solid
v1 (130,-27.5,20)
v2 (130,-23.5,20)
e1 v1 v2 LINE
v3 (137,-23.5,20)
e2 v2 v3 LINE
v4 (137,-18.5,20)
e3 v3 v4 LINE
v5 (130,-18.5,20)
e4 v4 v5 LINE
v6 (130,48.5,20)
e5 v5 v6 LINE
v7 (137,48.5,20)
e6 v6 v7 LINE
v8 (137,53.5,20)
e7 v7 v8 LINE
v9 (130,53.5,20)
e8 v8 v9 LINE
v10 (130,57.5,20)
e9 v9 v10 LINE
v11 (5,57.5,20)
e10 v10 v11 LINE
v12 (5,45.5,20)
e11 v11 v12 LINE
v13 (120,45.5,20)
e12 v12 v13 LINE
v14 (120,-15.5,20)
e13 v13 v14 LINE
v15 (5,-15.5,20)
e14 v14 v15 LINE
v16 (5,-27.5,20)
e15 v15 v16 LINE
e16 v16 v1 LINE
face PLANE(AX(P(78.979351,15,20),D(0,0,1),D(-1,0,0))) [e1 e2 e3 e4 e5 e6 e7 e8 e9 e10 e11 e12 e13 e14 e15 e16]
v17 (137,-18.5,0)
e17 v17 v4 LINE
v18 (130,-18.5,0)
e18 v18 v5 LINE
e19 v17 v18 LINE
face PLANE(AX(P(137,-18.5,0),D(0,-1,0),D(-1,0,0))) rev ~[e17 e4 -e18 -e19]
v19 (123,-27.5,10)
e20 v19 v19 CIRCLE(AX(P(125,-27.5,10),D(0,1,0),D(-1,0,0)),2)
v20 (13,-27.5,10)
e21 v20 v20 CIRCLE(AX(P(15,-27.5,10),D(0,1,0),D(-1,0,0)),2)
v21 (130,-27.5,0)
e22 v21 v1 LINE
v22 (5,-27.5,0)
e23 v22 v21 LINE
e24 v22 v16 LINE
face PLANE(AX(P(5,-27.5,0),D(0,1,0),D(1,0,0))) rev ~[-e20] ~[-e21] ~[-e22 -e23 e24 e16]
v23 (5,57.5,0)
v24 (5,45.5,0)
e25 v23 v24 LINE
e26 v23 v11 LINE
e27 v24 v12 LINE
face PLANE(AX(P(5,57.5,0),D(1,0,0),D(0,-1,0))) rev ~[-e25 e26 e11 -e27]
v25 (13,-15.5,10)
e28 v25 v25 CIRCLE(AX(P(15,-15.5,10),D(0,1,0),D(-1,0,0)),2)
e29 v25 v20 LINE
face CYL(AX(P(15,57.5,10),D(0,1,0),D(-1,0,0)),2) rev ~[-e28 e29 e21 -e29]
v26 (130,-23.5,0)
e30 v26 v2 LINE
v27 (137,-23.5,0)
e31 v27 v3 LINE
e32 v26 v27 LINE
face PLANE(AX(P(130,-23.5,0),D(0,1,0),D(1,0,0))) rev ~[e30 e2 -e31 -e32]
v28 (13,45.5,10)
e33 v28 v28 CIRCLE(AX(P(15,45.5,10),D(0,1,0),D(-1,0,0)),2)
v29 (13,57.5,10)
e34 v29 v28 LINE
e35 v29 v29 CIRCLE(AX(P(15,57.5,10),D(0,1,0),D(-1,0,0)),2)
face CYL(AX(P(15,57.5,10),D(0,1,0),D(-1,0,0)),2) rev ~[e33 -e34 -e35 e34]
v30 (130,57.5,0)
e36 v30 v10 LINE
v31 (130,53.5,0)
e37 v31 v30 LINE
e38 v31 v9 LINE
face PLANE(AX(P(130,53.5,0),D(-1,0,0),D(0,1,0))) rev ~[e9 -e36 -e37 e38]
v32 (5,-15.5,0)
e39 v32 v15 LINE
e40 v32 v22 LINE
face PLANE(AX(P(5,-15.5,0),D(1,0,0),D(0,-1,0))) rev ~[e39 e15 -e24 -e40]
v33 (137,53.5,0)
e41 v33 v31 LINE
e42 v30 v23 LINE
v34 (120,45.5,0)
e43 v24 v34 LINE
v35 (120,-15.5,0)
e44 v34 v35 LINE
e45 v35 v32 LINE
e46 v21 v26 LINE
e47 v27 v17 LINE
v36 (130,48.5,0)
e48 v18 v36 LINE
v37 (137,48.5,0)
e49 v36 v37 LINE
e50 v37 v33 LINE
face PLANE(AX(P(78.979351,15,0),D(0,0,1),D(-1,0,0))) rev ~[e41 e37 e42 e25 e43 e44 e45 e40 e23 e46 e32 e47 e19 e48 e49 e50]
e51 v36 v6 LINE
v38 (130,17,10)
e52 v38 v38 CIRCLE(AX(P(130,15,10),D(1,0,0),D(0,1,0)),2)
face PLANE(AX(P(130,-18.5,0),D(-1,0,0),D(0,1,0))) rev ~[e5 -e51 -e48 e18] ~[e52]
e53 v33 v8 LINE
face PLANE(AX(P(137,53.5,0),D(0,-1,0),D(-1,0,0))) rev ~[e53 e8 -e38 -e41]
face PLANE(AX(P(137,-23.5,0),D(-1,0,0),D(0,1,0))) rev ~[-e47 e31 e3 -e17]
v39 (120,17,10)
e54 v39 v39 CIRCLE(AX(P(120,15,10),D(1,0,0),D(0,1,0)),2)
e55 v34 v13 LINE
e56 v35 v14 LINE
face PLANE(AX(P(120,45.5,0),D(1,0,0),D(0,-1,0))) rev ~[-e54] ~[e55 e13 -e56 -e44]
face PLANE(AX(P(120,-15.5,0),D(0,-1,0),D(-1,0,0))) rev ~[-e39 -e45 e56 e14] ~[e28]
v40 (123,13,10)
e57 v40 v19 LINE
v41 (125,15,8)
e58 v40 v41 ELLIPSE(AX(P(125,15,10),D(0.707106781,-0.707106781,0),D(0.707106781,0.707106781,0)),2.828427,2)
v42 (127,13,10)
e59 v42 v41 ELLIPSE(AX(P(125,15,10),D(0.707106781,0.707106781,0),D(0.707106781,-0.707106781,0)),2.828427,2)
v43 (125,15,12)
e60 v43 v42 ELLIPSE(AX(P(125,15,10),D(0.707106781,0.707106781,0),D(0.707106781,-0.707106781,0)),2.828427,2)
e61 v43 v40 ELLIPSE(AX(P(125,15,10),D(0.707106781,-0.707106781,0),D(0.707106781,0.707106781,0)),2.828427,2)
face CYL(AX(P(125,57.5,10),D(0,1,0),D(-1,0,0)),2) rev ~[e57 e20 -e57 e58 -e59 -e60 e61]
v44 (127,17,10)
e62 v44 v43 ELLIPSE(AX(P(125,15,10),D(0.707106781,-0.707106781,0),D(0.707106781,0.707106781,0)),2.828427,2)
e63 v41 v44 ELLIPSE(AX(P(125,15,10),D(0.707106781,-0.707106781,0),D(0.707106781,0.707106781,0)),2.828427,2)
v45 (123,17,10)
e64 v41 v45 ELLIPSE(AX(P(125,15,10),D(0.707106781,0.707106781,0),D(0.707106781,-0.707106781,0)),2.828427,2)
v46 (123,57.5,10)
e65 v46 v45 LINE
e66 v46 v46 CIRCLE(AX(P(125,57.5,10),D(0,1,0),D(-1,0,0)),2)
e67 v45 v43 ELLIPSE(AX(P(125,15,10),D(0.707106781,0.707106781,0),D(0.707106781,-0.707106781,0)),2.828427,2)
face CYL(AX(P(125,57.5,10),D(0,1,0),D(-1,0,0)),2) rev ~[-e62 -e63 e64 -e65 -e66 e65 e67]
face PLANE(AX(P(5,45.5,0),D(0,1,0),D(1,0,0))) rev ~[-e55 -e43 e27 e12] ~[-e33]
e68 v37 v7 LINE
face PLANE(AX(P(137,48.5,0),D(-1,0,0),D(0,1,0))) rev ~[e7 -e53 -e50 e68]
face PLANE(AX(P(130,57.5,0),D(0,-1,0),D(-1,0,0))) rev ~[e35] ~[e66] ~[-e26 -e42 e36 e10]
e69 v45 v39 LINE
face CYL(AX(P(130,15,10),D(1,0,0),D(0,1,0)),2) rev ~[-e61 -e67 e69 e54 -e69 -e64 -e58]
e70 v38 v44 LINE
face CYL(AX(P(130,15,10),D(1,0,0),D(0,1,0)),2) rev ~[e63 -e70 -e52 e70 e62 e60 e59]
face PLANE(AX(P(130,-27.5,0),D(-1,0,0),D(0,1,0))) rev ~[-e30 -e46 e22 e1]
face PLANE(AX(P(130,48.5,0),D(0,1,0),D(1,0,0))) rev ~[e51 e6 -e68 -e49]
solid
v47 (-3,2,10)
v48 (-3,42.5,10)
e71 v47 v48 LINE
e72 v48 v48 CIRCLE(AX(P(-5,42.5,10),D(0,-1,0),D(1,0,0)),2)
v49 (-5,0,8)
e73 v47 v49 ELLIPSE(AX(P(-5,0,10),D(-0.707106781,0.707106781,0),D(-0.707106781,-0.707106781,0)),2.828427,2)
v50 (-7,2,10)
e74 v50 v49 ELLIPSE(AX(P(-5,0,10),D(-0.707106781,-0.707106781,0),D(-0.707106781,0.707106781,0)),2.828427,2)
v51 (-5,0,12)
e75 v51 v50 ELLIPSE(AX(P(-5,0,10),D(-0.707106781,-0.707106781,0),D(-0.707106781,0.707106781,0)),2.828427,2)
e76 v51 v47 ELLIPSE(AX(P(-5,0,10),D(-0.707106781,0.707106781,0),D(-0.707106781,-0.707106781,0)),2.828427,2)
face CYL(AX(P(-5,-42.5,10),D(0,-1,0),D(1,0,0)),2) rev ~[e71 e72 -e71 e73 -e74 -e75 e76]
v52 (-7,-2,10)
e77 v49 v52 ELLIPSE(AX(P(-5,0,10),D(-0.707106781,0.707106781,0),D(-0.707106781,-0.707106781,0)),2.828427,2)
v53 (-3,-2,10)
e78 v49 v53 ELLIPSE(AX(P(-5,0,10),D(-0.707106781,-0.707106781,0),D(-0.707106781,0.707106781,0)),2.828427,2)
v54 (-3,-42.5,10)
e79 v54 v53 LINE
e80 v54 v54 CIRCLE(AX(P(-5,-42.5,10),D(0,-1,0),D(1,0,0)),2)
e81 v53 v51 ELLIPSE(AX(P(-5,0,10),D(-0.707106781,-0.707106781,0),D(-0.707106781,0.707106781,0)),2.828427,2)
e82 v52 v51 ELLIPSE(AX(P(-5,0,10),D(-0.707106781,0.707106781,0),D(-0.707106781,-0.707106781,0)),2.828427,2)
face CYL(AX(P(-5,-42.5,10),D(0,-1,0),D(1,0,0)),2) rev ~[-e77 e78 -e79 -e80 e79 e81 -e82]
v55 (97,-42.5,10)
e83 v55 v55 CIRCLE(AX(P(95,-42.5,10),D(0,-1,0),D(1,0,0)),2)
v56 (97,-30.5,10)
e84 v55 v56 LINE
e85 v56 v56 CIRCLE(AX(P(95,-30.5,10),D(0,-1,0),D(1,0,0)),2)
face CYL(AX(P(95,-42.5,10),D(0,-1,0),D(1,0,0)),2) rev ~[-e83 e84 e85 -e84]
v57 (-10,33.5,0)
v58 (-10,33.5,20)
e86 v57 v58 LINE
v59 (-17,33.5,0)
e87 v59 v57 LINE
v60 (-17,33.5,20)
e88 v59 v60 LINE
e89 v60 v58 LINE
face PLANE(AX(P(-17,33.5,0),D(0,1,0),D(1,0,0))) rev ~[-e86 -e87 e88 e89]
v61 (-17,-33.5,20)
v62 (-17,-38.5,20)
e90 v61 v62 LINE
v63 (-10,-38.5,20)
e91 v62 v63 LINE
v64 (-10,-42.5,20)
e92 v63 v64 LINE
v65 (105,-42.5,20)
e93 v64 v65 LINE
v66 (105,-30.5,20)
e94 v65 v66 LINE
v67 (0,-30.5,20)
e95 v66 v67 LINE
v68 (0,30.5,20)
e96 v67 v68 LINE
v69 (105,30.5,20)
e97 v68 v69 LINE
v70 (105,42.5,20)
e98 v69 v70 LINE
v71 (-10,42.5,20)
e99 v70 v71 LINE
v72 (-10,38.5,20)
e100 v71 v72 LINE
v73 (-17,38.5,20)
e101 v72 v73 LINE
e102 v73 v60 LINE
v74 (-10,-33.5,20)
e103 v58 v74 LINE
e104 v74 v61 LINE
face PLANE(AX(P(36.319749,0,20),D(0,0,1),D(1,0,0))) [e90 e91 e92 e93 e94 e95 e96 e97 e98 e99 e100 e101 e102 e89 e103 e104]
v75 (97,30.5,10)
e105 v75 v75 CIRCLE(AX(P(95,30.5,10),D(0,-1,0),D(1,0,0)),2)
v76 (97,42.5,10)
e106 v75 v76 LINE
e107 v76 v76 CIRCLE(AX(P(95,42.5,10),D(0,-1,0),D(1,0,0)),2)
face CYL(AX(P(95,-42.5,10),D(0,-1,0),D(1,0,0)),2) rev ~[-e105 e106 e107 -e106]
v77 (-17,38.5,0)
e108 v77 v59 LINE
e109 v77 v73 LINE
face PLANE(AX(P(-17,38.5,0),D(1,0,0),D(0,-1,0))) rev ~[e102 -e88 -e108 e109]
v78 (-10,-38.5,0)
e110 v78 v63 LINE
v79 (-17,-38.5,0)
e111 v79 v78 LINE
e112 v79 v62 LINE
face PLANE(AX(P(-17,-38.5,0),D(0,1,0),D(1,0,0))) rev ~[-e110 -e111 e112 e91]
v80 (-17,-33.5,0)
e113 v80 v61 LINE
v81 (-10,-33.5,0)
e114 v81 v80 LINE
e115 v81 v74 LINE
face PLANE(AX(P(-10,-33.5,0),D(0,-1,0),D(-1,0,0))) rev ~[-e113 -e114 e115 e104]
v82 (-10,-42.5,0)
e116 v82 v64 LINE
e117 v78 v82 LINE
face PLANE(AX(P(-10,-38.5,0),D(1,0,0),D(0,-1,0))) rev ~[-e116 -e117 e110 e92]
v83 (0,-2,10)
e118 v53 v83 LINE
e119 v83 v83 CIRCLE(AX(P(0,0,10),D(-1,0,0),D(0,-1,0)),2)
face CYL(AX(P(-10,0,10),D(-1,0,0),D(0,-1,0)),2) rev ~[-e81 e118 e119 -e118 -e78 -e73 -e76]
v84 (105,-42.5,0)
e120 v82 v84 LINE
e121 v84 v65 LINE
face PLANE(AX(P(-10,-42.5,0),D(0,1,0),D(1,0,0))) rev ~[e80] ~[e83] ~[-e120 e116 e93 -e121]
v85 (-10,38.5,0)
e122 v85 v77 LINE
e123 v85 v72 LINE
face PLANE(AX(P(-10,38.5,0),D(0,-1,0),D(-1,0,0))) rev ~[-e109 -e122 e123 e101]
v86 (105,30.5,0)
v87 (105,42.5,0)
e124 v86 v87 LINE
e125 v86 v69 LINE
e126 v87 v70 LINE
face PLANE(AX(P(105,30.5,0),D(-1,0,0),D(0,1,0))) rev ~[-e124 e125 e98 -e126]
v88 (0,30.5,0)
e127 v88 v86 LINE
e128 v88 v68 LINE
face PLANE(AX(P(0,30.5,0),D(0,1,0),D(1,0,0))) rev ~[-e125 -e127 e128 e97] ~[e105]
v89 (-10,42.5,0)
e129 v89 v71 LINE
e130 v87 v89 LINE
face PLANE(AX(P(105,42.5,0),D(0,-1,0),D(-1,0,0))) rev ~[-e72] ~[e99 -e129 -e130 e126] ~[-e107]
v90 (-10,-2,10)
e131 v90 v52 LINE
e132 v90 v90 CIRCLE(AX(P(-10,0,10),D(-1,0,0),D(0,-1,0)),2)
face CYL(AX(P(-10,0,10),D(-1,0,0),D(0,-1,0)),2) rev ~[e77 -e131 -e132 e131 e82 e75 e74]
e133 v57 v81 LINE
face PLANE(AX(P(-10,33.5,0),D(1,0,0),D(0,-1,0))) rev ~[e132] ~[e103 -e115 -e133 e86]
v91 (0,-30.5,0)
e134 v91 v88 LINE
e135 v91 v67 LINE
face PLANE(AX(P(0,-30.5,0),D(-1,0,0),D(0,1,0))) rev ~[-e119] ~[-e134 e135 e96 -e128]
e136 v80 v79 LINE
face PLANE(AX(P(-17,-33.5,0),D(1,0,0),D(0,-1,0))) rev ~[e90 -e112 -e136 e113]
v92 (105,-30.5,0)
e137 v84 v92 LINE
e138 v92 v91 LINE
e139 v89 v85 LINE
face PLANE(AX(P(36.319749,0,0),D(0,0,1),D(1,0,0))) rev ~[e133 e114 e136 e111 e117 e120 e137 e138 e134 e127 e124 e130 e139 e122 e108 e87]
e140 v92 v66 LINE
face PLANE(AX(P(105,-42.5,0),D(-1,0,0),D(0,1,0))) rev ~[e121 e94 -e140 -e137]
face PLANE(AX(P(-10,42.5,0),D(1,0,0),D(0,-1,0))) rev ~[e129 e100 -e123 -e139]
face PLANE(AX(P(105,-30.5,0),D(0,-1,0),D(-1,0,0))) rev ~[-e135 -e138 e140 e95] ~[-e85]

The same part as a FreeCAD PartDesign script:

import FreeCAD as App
import Part
import Sketcher
Q = App.Units.Quantity

doc = App.newDocument("Part")
params = doc.addObject("Spreadsheet::Sheet", "Params")
for row, (alias, value) in enumerate([
    ("sketch1_width", "115 mm"),
    ("sketch1_width2", "105 mm"),
    ("sketch1_width3", "7 mm"),
    ("sketch1_height", "12 mm"),
    ("sketch1_height2", "61 mm"),
    ("pad1_length", "20 mm"),
    ("sketch2_diameter", "4 mm"),
    ("sketch3_diameter", "4 mm"),
    ("sketch4_width", "125 mm"),
    ("sketch4_width2", "115 mm"),
    ("sketch4_width3", "7 mm"),
    ("sketch4_height", "12 mm"),
    ("sketch4_height2", "61 mm"),
    ("pad2_length", "20 mm"),
    ("sketch5_diameter", "4 mm"),
    ("sketch6_diameter", "4 mm"),
], start=1):
    params.set(f"A{row}", alias)
    params.set(f"B{row}", "=" + value)
    params.setAlias(f"B{row}", alias)

body = doc.addObject("PartDesign::Body", "Body")

# Sketch on XY plane
sketch1 = body.newObject("Sketcher::SketchObject", "Sketch")
sketch1.AttachmentSupport = (doc.getObject("XY_Plane"), [""])
sketch1.MapMode = "FlatFace"
sketch1.addGeometry([
    Part.LineSegment(App.Vector(-10, -42.5, 0), App.Vector(105, -42.5, 0)),  # 0
    Part.LineSegment(App.Vector(105, -42.5, 0), App.Vector(105, -30.5, 0)),  # 1
    Part.LineSegment(App.Vector(105, -30.5, 0), App.Vector(0, -30.5, 0)),  # 2
    Part.LineSegment(App.Vector(0, -30.5, 0), App.Vector(0, 30.5, 0)),  # 3
    Part.LineSegment(App.Vector(0, 30.5, 0), App.Vector(105, 30.5, 0)),  # 4
    Part.LineSegment(App.Vector(105, 30.5, 0), App.Vector(105, 42.5, 0)),  # 5
    Part.LineSegment(App.Vector(105, 42.5, 0), App.Vector(-10, 42.5, 0)),  # 6
    Part.LineSegment(App.Vector(-10, 42.5, 0), App.Vector(-10, 38.5, 0)),  # 7
    Part.LineSegment(App.Vector(-10, 38.5, 0), App.Vector(-17, 38.5, 0)),  # 8
    Part.LineSegment(App.Vector(-17, 38.5, 0), App.Vector(-17, 33.5, 0)),  # 9
    Part.LineSegment(App.Vector(-17, 33.5, 0), App.Vector(-10, 33.5, 0)),  # 10
    Part.LineSegment(App.Vector(-10, 33.5, 0), App.Vector(-10, -33.5, 0)),  # 11
    Part.LineSegment(App.Vector(-10, -33.5, 0), App.Vector(-17, -33.5, 0)),  # 12
    Part.LineSegment(App.Vector(-17, -33.5, 0), App.Vector(-17, -38.5, 0)),  # 13
    Part.LineSegment(App.Vector(-17, -38.5, 0), App.Vector(-10, -38.5, 0)),  # 14
    Part.LineSegment(App.Vector(-10, -38.5, 0), App.Vector(-10, -42.5, 0)),  # 15
], False)
sketch1.addConstraint([
    Sketcher.Constraint("Coincident", 0, 2, 1, 1),
    Sketcher.Constraint("Coincident", 1, 2, 2, 1),
    Sketcher.Constraint("Coincident", 2, 2, 3, 1),
    Sketcher.Constraint("Coincident", 3, 2, 4, 1),
    Sketcher.Constraint("Coincident", 4, 2, 5, 1),
    Sketcher.Constraint("Coincident", 5, 2, 6, 1),
    Sketcher.Constraint("Coincident", 6, 2, 7, 1),
    Sketcher.Constraint("Coincident", 7, 2, 8, 1),
    Sketcher.Constraint("Coincident", 8, 2, 9, 1),
    Sketcher.Constraint("Coincident", 9, 2, 10, 1),
    Sketcher.Constraint("Coincident", 10, 2, 11, 1),
    Sketcher.Constraint("Coincident", 11, 2, 12, 1),
    Sketcher.Constraint("Coincident", 12, 2, 13, 1),
    Sketcher.Constraint("Coincident", 13, 2, 14, 1),
    Sketcher.Constraint("Coincident", 14, 2, 15, 1),
    Sketcher.Constraint("Coincident", 15, 2, 0, 1),
    Sketcher.Constraint("Horizontal", 0),
    Sketcher.Constraint("Vertical", 1),
    Sketcher.Constraint("Horizontal", 2),
    Sketcher.Constraint("Vertical", 3),
    Sketcher.Constraint("Horizontal", 4),
    Sketcher.Constraint("Vertical", 5),
    Sketcher.Constraint("Horizontal", 6),
    Sketcher.Constraint("Vertical", 7),
    Sketcher.Constraint("Horizontal", 8),
    Sketcher.Constraint("Vertical", 9),
    Sketcher.Constraint("Horizontal", 10),
    Sketcher.Constraint("Vertical", 11),
    Sketcher.Constraint("Horizontal", 12),
    Sketcher.Constraint("Vertical", 13),
    Sketcher.Constraint("Horizontal", 14),
    Sketcher.Constraint("Vertical", 15),
    Sketcher.Constraint("Symmetric", 2, 2, 3, 2, -1, 1),
    Sketcher.Constraint("Symmetric", 0, 2, 5, 2, -1),
    Sketcher.Constraint("Symmetric", 9, 2, 12, 2, -1),
    Sketcher.Constraint("Symmetric", 7, 2, 14, 2, -1),
    Sketcher.Constraint("Vertical", 7, 2, 10, 2),
    Sketcher.Constraint("DistanceX", 0, 1, 0, 2, Q("115 mm")),
    Sketcher.Constraint("DistanceX", 2, 2, 2, 1, Q("105 mm")),
    Sketcher.Constraint("DistanceX", 8, 2, 8, 1, Q("7 mm")),
    Sketcher.Constraint("DistanceY", 1, 1, 1, 2, Q("12 mm")),
    Sketcher.Constraint("DistanceY", 3, 1, 3, 2, Q("61 mm")),
    Sketcher.Constraint("DistanceY", 7, 2, 7, 1, Q("4 mm")),
    Sketcher.Constraint("DistanceY", 9, 2, 9, 1, Q("5 mm")),
])
sketch1.setExpression("Constraints[37]", "Params.sketch1_width")
sketch1.setExpression("Constraints[38]", "Params.sketch1_width2")
sketch1.setExpression("Constraints[39]", "Params.sketch1_width3")
sketch1.setExpression("Constraints[40]", "Params.sketch1_height")
sketch1.setExpression("Constraints[41]", "Params.sketch1_height2")
pad1 = body.newObject("PartDesign::Pad", "Pad")
pad1.Profile = sketch1
pad1.setExpression("Length", "Params.pad1_length")

# Sketch on YZ plane
sketch2 = body.newObject("Sketcher::SketchObject", "Sketch001")
sketch2.AttachmentSupport = (doc.getObject("YZ_Plane"), [""])
sketch2.MapMode = "FlatFace"
sketch2.AttachmentOffset = App.Placement(App.Vector(0, 0, -10), App.Rotation())
sketch2.addGeometry(Part.Circle(App.Vector(0, 10, 0), App.Vector(0, 0, 1), 2), False)
sketch2.addConstraint([
    Sketcher.Constraint("PointOnObject", 0, 3, -2),
    Sketcher.Constraint("Diameter", 0, Q("4 mm")),
    Sketcher.Constraint("DistanceY", -1, 1, 0, 3, Q("10 mm")),
])
sketch2.setExpression("Constraints[1]", "Params.sketch2_diameter")
pocket1 = body.newObject("PartDesign::Pocket", "Pocket")
pocket1.Profile = sketch2
pocket1.Type = "ThroughAll"
pocket1.Reversed = True

# Sketch on XZ plane
sketch3 = body.newObject("Sketcher::SketchObject", "Sketch002")
sketch3.AttachmentSupport = (doc.getObject("XZ_Plane"), [""])
sketch3.MapMode = "FlatFace"
sketch3.AttachmentOffset = App.Placement(App.Vector(0, 0, 42.5), App.Rotation())
sketch3.addGeometry([
    Part.Circle(App.Vector(-5, 10, 0), App.Vector(0, 0, 1), 2),
    Part.Circle(App.Vector(95, 10, 0), App.Vector(0, 0, 1), 2),
], False)
sketch3.addConstraint([
    Sketcher.Constraint("Equal", 0, 1),
    Sketcher.Constraint("Horizontal", 0, 3, 1, 3),
    Sketcher.Constraint("Diameter", 0, Q("4 mm")),
    Sketcher.Constraint("DistanceX", 0, 3, -1, 1, Q("5 mm")),
    Sketcher.Constraint("DistanceY", -1, 1, 0, 3, Q("10 mm")),
    Sketcher.Constraint("DistanceX", -1, 1, 1, 3, Q("95 mm")),
])
sketch3.setExpression("Constraints[2]", "Params.sketch3_diameter")
pocket2 = body.newObject("PartDesign::Pocket", "Pocket001")
pocket2.Profile = sketch3
pocket2.Type = "ThroughAll"
body2 = doc.addObject("PartDesign::Body", "Body001")

# Sketch on XY plane
sketch4 = body2.newObject("Sketcher::SketchObject", "Sketch003")
sketch4.AttachmentSupport = (doc.getObject("XY_Plane001"), [""])
sketch4.MapMode = "FlatFace"
sketch4.addGeometry([
    Part.LineSegment(App.Vector(130, 57.5, 0), App.Vector(5, 57.5, 0)),  # 0
    Part.LineSegment(App.Vector(5, 57.5, 0), App.Vector(5, 45.5, 0)),  # 1
    Part.LineSegment(App.Vector(5, 45.5, 0), App.Vector(120, 45.5, 0)),  # 2
    Part.LineSegment(App.Vector(120, 45.5, 0), App.Vector(120, -15.5, 0)),  # 3
    Part.LineSegment(App.Vector(120, -15.5, 0), App.Vector(5, -15.5, 0)),  # 4
    Part.LineSegment(App.Vector(5, -15.5, 0), App.Vector(5, -27.5, 0)),  # 5
    Part.LineSegment(App.Vector(5, -27.5, 0), App.Vector(130, -27.5, 0)),  # 6
    Part.LineSegment(App.Vector(130, -27.5, 0), App.Vector(130, -23.5, 0)),  # 7
    Part.LineSegment(App.Vector(130, -23.5, 0), App.Vector(137, -23.5, 0)),  # 8
    Part.LineSegment(App.Vector(137, -23.5, 0), App.Vector(137, -18.5, 0)),  # 9
    Part.LineSegment(App.Vector(137, -18.5, 0), App.Vector(130, -18.5, 0)),  # 10
    Part.LineSegment(App.Vector(130, -18.5, 0), App.Vector(130, 48.5, 0)),  # 11
    Part.LineSegment(App.Vector(130, 48.5, 0), App.Vector(137, 48.5, 0)),  # 12
    Part.LineSegment(App.Vector(137, 48.5, 0), App.Vector(137, 53.5, 0)),  # 13
    Part.LineSegment(App.Vector(137, 53.5, 0), App.Vector(130, 53.5, 0)),  # 14
    Part.LineSegment(App.Vector(130, 53.5, 0), App.Vector(130, 57.5, 0)),  # 15
], False)
sketch4.addConstraint([
    Sketcher.Constraint("Coincident", 0, 2, 1, 1),
    Sketcher.Constraint("Coincident", 1, 2, 2, 1),
    Sketcher.Constraint("Coincident", 2, 2, 3, 1),
    Sketcher.Constraint("Coincident", 3, 2, 4, 1),
    Sketcher.Constraint("Coincident", 4, 2, 5, 1),
    Sketcher.Constraint("Coincident", 5, 2, 6, 1),
    Sketcher.Constraint("Coincident", 6, 2, 7, 1),
    Sketcher.Constraint("Coincident", 7, 2, 8, 1),
    Sketcher.Constraint("Coincident", 8, 2, 9, 1),
    Sketcher.Constraint("Coincident", 9, 2, 10, 1),
    Sketcher.Constraint("Coincident", 10, 2, 11, 1),
    Sketcher.Constraint("Coincident", 11, 2, 12, 1),
    Sketcher.Constraint("Coincident", 12, 2, 13, 1),
    Sketcher.Constraint("Coincident", 13, 2, 14, 1),
    Sketcher.Constraint("Coincident", 14, 2, 15, 1),
    Sketcher.Constraint("Coincident", 15, 2, 0, 1),
    Sketcher.Constraint("Horizontal", 0),
    Sketcher.Constraint("Vertical", 1),
    Sketcher.Constraint("Horizontal", 2),
    Sketcher.Constraint("Vertical", 3),
    Sketcher.Constraint("Horizontal", 4),
    Sketcher.Constraint("Vertical", 5),
    Sketcher.Constraint("Horizontal", 6),
    Sketcher.Constraint("Vertical", 7),
    Sketcher.Constraint("Horizontal", 8),
    Sketcher.Constraint("Vertical", 9),
    Sketcher.Constraint("Horizontal", 10),
    Sketcher.Constraint("Vertical", 11),
    Sketcher.Constraint("Horizontal", 12),
    Sketcher.Constraint("Vertical", 13),
    Sketcher.Constraint("Horizontal", 14),
    Sketcher.Constraint("Vertical", 15),
    Sketcher.Constraint("Vertical", 1, 2, 4, 2),
    Sketcher.Constraint("Vertical", 7, 2, 10, 2),
    Sketcher.Constraint("Vertical", 9, 2, 12, 2),
    Sketcher.Constraint("Vertical", 11, 2, 14, 2),
    Sketcher.Constraint("Equal", 1, 5),
    Sketcher.Constraint("Equal", 9, 13),
    Sketcher.Constraint("Equal", 7, 15),
    Sketcher.Constraint("DistanceX", 0, 2, 0, 1, Q("125 mm")),
    Sketcher.Constraint("DistanceX", 2, 1, 2, 2, Q("115 mm")),
    Sketcher.Constraint("DistanceX", 8, 1, 8, 2, Q("7 mm")),
    Sketcher.Constraint("DistanceY", 1, 2, 1, 1, Q("12 mm")),
    Sketcher.Constraint("DistanceY", 3, 2, 3, 1, Q("61 mm")),
    Sketcher.Constraint("DistanceY", 7, 1, 7, 2, Q("4 mm")),
    Sketcher.Constraint("DistanceY", 9, 1, 9, 2, Q("5 mm")),
    Sketcher.Constraint("DistanceX", -1, 1, 0, 2, Q("5 mm")),
    Sketcher.Constraint("DistanceY", -1, 1, 0, 2, Q("57.5 mm")),
])
sketch4.setExpression("Constraints[39]", "Params.sketch4_width")
sketch4.setExpression("Constraints[40]", "Params.sketch4_width2")
sketch4.setExpression("Constraints[41]", "Params.sketch4_width3")
sketch4.setExpression("Constraints[42]", "Params.sketch4_height")
sketch4.setExpression("Constraints[43]", "Params.sketch4_height2")
pad2 = body2.newObject("PartDesign::Pad", "Pad001")
pad2.Profile = sketch4
pad2.setExpression("Length", "Params.pad2_length")

# Sketch on YZ plane
sketch5 = body2.newObject("Sketcher::SketchObject", "Sketch004")
sketch5.AttachmentSupport = (doc.getObject("YZ_Plane001"), [""])
sketch5.MapMode = "FlatFace"
sketch5.AttachmentOffset = App.Placement(App.Vector(0, 0, 130), App.Rotation())
sketch5.addGeometry(Part.Circle(App.Vector(15, 10, 0), App.Vector(0, 0, 1), 2), False)
sketch5.addConstraint([
    Sketcher.Constraint("Diameter", 0, Q("4 mm")),
    Sketcher.Constraint("DistanceX", -1, 1, 0, 3, Q("15 mm")),
    Sketcher.Constraint("DistanceY", -1, 1, 0, 3, Q("10 mm")),
])
sketch5.setExpression("Constraints[0]", "Params.sketch5_diameter")
pocket3 = body2.newObject("PartDesign::Pocket", "Pocket002")
pocket3.Profile = sketch5
pocket3.Type = "ThroughAll"

# Sketch on XZ plane
sketch6 = body2.newObject("Sketcher::SketchObject", "Sketch005")
sketch6.AttachmentSupport = (doc.getObject("XZ_Plane001"), [""])
sketch6.MapMode = "FlatFace"
sketch6.AttachmentOffset = App.Placement(App.Vector(0, 0, -57.5), App.Rotation())
sketch6.addGeometry([
    Part.Circle(App.Vector(125, 10, 0), App.Vector(0, 0, 1), 2),
    Part.Circle(App.Vector(15, 10, 0), App.Vector(0, 0, 1), 2),
], False)
sketch6.addConstraint([
    Sketcher.Constraint("Equal", 0, 1),
    Sketcher.Constraint("Horizontal", 0, 3, 1, 3),
    Sketcher.Constraint("Diameter", 0, Q("4 mm")),
    Sketcher.Constraint("DistanceX", -1, 1, 0, 3, Q("125 mm")),
    Sketcher.Constraint("DistanceY", -1, 1, 0, 3, Q("10 mm")),
    Sketcher.Constraint("DistanceX", -1, 1, 1, 3, Q("15 mm")),
])
sketch6.setExpression("Constraints[2]", "Params.sketch6_diameter")
pocket4 = body2.newObject("PartDesign::Pocket", "Pocket003")
pocket4.Profile = sketch6
pocket4.Type = "ThroughAll"
pocket4.Reversed = True

doc.recompute()
